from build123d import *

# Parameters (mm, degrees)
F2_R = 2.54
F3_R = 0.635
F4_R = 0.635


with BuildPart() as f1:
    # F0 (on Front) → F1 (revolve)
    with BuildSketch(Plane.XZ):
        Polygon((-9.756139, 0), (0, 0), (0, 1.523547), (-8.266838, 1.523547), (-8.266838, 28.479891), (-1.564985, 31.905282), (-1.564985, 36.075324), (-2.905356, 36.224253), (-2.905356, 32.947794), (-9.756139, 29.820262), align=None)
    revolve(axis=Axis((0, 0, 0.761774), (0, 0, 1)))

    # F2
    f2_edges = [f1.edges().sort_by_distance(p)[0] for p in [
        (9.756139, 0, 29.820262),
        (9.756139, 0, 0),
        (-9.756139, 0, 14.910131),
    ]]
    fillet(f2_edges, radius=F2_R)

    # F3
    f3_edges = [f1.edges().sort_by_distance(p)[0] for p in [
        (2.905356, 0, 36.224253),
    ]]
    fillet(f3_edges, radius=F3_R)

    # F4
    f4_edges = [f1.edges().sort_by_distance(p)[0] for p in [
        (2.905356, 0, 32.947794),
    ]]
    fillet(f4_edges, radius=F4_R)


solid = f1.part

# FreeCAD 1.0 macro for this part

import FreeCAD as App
import Part
import Sketcher
from FreeCAD import Vector
Q = App.Units.Quantity


def edges_at(feature, points):
    """Names of the edges that pass closest to the given points."""
    edges = feature.Shape.Edges
    near = lambda p: min(range(len(edges)), key=lambda i: edges[i].distToShape(Part.Vertex(*p))[0])
    return sorted({f"Edge{near(p) + 1}" for p in points})

doc = App.newDocument("Part")
body = doc.addObject("PartDesign::Body", "Body")

# Sketch on XZ plane
sketch1 = body.newObject("Sketcher::SketchObject", "Sketch")
sketch1.AttachmentSupport = (doc.getObject("XZ_Plane"), [""])
sketch1.MapMode = "FlatFace"
sketch1.addGeometry([
    Part.LineSegment(Vector(-9.8, 0, 0), Vector(0, 0, 0)),  # 0
    Part.LineSegment(Vector(0, 0, 0), Vector(0, 1.5, 0)),  # 1
    Part.LineSegment(Vector(0, 1.5, 0), Vector(-8.3, 1.5, 0)),  # 2
    Part.LineSegment(Vector(-8.3, 1.5, 0), Vector(-8.3, 28.5, 0)),  # 3
    Part.LineSegment(Vector(-8.3, 28.5, 0), Vector(-1.6, 31.9, 0)),  # 4
    Part.LineSegment(Vector(-1.6, 31.9, 0), Vector(-1.6, 36.1, 0)),  # 5
    Part.LineSegment(Vector(-1.6, 36.1, 0), Vector(-2.9, 36.2, 0)),  # 6
    Part.LineSegment(Vector(-2.9, 36.2, 0), Vector(-2.9, 32.9, 0)),  # 7
    Part.LineSegment(Vector(-2.9, 32.9, 0), Vector(-9.8, 29.8, 0)),  # 8
    Part.LineSegment(Vector(-9.8, 29.8, 0), Vector(-9.8, 0, 0)),  # 9
], False)
sketch1.addConstraint([
    Sketcher.Constraint("Coincident", 0, 2, 1, 1),
    Sketcher.Constraint("Coincident", 1, 2, 2, 1),
    Sketcher.Constraint("Coincident", 2, 2, 3, 1),
    Sketcher.Constraint("Coincident", 3, 2, 4, 1),
    Sketcher.Constraint("Coincident", 4, 2, 5, 1),
    Sketcher.Constraint("Coincident", 5, 2, 6, 1),
    Sketcher.Constraint("Coincident", 6, 2, 7, 1),
    Sketcher.Constraint("Coincident", 7, 2, 8, 1),
    Sketcher.Constraint("Coincident", 8, 2, 9, 1),
    Sketcher.Constraint("Coincident", 9, 2, 0, 1),
    Sketcher.Constraint("Horizontal", 0),
    Sketcher.Constraint("Vertical", 1),
    Sketcher.Constraint("Horizontal", 2),
    Sketcher.Constraint("Vertical", 3),
    Sketcher.Constraint("Vertical", 5),
    Sketcher.Constraint("Vertical", 7),
    Sketcher.Constraint("Vertical", 9),
    Sketcher.Constraint("Coincident", 0, 2, -1, 1),
    Sketcher.Constraint("DistanceX", 0, 1, 0, 2, Q("0.3841 in")),
    Sketcher.Constraint("DistanceY", 7, 2, 7, 1, Q("3.276459 mm")),
    Sketcher.Constraint("DistanceY", 9, 2, 9, 1, Q("29.820262 mm")),
    Sketcher.Constraint("DistanceX", 8, 2, 3, 2, Q("1.489301 mm")),
    Sketcher.Constraint("Distance", 6, Q("1.348619 mm")),
    Sketcher.Constraint("DistanceY", 1, 1, 1, 2, Q("1.523547 mm")),
    Sketcher.Constraint("DistanceY", 3, 1, 3, 2, Q("26.956344 mm")),
    Sketcher.Constraint("DistanceY", 5, 1, 5, 2, Q("4.170042 mm")),
    Sketcher.Constraint("DistanceY", -1, 1, 4, 2, Q("31.905282 mm")),
    Sketcher.Constraint("DistanceX", 6, 2, 5, 2, Q("1.340371 mm")),
    Sketcher.Constraint("Distance", 4, Q("7.526496 mm")),
])
revolution = body.newObject("PartDesign::Revolution", "Revolution")
revolution.Profile = sketch1
revolution.ReferenceAxis = (sketch1, ["V_Axis"])
revolution.Angle = 360
doc.recompute()

fillet = body.newObject("PartDesign::Fillet", "Fillet")
fillet.Base = (revolution, edges_at(revolution, [(9.756, 0, 29.82), (9.756, 0, 0), (-9.756, 0, 14.91)]))
fillet.Radius = Q("0.1 in")
doc.recompute()

fillet2 = body.newObject("PartDesign::Fillet", "Fillet001")
fillet2.Base = (fillet, edges_at(fillet, [(2.905, 0, 36.224)]))
fillet2.Radius = Q("0.025 in")
doc.recompute()

fillet3 = body.newObject("PartDesign::Fillet", "Fillet002")
fillet3.Base = (fillet2, edges_at(fillet2, [(2.905, 0, 32.948)]))
fillet3.Radius = Q("0.025 in")

doc.recompute()
